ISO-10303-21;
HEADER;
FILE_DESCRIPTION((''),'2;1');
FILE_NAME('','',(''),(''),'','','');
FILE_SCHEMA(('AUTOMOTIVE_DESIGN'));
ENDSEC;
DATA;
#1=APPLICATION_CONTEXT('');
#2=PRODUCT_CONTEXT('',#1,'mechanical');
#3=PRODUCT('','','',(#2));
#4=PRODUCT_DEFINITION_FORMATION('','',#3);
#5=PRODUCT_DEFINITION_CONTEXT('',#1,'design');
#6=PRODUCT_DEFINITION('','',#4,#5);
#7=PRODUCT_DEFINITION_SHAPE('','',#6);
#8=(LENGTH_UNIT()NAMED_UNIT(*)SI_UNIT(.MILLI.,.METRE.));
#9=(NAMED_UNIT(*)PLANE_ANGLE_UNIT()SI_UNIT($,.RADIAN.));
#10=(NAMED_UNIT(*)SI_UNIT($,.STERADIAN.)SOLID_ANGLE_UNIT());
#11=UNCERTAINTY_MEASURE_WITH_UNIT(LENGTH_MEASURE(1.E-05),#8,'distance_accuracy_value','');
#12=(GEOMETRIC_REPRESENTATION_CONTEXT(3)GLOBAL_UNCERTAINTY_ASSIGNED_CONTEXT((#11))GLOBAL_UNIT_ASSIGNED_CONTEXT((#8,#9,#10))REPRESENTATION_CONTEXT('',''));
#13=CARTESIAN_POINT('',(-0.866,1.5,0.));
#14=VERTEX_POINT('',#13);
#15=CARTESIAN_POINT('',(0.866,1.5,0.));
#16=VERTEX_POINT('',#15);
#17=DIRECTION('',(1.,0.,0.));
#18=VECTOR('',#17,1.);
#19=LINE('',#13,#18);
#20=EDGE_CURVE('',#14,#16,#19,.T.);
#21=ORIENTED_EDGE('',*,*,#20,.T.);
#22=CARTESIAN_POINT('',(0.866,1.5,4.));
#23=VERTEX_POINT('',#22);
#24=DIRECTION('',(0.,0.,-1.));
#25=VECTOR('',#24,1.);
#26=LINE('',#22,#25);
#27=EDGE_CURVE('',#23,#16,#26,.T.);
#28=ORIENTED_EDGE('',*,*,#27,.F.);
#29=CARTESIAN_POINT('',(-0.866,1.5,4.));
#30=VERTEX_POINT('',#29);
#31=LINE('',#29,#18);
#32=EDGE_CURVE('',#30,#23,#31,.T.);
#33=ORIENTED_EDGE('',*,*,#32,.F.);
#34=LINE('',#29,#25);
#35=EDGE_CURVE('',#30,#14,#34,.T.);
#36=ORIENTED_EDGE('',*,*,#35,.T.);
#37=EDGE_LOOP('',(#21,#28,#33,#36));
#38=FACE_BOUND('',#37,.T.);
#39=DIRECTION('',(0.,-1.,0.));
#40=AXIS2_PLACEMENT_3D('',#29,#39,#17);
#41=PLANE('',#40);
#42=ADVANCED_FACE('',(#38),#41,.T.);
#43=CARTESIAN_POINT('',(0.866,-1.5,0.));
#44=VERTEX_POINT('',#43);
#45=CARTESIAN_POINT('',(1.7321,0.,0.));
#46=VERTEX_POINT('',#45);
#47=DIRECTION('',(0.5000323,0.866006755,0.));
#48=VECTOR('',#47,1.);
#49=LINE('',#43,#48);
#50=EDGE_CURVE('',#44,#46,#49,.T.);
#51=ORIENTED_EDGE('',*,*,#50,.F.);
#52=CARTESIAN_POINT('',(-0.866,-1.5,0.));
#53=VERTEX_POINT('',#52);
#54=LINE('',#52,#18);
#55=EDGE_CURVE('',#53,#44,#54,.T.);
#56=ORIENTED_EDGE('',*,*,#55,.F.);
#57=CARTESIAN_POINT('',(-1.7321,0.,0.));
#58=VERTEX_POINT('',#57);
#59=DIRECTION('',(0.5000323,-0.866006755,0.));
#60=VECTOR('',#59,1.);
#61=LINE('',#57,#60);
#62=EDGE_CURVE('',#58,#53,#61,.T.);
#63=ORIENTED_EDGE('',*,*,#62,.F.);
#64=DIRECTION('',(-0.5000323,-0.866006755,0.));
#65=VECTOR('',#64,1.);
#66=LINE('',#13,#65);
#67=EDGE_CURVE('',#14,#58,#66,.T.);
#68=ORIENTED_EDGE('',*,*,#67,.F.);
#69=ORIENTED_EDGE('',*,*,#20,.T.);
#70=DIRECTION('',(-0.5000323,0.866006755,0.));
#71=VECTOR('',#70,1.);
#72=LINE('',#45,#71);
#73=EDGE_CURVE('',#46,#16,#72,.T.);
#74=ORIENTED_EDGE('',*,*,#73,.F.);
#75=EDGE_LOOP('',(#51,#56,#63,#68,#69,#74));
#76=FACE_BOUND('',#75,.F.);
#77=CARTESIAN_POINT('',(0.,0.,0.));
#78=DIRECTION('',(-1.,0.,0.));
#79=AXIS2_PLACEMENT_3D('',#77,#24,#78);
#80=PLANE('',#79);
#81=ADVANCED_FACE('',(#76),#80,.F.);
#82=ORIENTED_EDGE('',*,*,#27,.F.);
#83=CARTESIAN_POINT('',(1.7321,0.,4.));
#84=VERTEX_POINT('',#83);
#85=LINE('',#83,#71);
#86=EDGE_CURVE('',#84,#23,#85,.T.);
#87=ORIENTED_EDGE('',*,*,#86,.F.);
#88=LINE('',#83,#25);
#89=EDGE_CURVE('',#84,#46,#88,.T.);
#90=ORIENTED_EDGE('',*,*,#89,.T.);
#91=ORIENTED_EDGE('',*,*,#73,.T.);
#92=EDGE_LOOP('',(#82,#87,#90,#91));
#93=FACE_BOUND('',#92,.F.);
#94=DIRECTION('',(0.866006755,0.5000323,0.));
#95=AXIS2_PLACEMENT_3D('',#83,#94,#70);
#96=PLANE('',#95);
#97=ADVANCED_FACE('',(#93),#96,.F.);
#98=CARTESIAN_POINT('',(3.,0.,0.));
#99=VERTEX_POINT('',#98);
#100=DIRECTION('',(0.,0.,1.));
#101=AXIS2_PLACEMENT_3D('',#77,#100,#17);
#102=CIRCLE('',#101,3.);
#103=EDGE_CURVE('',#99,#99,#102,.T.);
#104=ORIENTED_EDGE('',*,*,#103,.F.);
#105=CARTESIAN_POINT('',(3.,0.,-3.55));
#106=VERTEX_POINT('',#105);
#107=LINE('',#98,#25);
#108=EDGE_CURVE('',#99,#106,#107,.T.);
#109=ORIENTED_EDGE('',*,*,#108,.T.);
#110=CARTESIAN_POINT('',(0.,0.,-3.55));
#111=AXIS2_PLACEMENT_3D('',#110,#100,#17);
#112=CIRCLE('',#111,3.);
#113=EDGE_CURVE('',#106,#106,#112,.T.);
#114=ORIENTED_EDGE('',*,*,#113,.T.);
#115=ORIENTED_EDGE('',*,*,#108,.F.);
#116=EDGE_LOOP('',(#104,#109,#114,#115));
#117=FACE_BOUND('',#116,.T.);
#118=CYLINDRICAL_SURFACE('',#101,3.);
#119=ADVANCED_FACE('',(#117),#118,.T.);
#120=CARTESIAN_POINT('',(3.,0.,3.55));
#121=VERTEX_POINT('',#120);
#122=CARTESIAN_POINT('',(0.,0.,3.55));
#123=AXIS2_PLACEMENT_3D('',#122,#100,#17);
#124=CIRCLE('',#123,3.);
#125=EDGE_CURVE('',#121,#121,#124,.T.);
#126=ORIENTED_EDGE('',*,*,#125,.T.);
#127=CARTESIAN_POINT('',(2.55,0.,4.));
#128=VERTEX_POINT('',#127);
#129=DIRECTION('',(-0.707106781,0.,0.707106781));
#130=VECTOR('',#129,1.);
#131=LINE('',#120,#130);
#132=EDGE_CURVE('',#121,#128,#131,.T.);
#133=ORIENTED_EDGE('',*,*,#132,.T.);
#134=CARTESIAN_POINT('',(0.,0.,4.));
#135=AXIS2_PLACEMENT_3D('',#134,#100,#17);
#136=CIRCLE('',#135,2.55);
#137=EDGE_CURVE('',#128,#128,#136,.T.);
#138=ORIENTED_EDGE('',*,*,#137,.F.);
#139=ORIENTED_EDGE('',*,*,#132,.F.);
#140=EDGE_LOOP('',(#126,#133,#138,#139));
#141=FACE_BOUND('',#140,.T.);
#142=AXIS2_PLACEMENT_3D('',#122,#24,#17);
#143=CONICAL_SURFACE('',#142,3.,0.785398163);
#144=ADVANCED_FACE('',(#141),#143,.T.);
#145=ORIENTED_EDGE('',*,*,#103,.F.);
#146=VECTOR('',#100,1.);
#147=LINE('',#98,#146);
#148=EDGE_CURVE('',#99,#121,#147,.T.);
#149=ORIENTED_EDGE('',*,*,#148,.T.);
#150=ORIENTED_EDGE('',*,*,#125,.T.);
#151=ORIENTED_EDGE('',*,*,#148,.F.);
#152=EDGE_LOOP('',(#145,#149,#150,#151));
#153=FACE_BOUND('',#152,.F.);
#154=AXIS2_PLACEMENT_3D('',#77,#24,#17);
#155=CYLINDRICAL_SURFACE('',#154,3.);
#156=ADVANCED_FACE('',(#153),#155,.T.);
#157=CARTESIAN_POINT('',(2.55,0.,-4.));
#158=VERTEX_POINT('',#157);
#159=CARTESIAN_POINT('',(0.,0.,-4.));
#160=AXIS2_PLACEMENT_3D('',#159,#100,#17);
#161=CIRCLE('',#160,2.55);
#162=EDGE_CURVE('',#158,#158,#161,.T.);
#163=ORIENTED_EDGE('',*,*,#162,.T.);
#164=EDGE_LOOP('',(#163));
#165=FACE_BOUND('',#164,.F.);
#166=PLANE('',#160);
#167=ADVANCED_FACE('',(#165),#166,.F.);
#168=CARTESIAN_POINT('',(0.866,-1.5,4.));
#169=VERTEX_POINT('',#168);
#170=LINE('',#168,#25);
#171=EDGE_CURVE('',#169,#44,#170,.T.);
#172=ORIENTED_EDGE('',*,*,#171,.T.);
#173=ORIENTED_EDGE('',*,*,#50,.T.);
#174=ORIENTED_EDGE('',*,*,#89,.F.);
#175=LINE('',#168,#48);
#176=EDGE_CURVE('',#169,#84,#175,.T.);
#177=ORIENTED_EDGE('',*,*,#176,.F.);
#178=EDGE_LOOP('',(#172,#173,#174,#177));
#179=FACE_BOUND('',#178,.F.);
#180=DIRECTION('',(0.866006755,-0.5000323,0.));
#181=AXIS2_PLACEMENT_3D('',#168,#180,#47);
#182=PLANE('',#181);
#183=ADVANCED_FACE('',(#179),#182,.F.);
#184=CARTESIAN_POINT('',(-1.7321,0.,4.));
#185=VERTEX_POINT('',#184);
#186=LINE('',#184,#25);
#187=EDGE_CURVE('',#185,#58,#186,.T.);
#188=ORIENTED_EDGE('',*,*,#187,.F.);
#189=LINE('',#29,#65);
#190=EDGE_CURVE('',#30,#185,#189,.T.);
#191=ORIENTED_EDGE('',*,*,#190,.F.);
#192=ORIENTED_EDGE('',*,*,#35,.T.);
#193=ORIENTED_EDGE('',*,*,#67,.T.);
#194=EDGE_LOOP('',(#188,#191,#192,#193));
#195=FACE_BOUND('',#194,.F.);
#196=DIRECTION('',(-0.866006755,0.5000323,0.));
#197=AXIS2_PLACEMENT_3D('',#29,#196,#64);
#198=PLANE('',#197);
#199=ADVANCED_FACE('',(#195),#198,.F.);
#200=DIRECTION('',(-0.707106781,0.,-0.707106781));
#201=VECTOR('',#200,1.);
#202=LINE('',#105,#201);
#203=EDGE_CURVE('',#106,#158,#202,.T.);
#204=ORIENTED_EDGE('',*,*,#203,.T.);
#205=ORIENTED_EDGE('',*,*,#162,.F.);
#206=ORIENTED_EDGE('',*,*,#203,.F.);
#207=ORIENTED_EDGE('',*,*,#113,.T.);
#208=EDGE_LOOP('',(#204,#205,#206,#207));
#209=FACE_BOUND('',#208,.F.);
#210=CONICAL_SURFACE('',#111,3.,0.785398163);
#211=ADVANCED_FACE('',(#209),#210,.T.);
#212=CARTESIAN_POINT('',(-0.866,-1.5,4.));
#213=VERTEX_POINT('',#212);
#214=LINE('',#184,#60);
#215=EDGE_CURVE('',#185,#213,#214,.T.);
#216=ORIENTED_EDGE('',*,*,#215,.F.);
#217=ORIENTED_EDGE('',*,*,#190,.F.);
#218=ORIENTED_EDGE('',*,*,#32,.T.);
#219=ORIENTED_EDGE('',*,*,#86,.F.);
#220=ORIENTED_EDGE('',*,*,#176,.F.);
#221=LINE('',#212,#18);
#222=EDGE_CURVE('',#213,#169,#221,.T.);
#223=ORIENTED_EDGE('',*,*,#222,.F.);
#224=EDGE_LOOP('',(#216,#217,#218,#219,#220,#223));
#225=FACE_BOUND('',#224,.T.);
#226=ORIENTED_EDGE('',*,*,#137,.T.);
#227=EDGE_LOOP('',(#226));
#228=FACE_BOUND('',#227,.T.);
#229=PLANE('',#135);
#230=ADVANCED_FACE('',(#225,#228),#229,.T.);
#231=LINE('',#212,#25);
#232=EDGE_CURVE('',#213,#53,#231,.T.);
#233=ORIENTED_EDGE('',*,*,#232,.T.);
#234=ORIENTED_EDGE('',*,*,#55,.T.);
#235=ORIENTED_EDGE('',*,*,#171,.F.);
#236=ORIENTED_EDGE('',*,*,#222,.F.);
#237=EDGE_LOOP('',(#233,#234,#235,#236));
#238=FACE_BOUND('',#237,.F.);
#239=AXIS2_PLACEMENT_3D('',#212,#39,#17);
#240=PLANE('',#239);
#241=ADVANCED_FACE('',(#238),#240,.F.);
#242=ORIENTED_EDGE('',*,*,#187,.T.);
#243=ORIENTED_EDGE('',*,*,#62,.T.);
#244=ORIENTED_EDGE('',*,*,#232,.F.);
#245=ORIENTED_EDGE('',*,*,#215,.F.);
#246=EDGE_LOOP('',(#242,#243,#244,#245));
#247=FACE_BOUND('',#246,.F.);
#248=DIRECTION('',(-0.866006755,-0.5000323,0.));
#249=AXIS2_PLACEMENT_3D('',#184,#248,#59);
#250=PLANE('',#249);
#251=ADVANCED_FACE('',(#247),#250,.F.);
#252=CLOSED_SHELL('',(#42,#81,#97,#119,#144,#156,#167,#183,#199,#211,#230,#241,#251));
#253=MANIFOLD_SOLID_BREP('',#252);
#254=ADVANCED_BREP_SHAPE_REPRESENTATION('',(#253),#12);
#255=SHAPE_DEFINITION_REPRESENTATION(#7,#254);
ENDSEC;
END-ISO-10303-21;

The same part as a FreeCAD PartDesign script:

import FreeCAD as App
import Part
import Sketcher
from FreeCAD import Vector
Q = App.Units.Quantity


def edges_at(feature, points):
    """Names of the edges that pass closest to the given points."""
    edges = feature.Shape.Edges
    near = lambda p: min(range(len(edges)), key=lambda i: edges[i].distToShape(Part.Vertex(*p))[0])
    return sorted({f"Edge{near(p) + 1}" for p in points})


def add_polygon(sketch, points):
    """Adds a closed chain of lines whose ends are joined by coincident constraints."""
    first, n = sketch.GeometryCount, len(points)
    for a, b in zip(points, points[1:] + points[:1]):
        sketch.addGeometry(Part.LineSegment(App.Vector(*a, 0), App.Vector(*b, 0)), False)
    for i in range(n):
        sketch.addConstraint(Sketcher.Constraint("Coincident", first + i, 2, first + (i + 1) % n, 1))

doc = App.newDocument("Part")
body = doc.addObject("PartDesign::Body", "Body")

sketch1 = body.newObject("Sketcher::SketchObject", "Sketch")
sketch1.AttachmentSupport = (doc.getObject("XY_Plane"), [""])
sketch1.MapMode = "FlatFace"
sketch1.addGeometry(Part.Circle(Vector(0, 0, 0), Vector(0, 0, 1), 3), False)
sketch1.addConstraint([
    Sketcher.Constraint("Coincident", 0, 3, -1, 1),
    Sketcher.Constraint("Diameter", 0, Q("6 mm")),
])
pad1 = body.newObject("PartDesign::Pad", "Pad")
pad1.Profile = sketch1
pad1.Length = 8
pad1.Midplane = True
doc.recompute()

chamfer = body.newObject("PartDesign::Chamfer", "Chamfer")
chamfer.Base = (pad1, edges_at(pad1, [(-3, 0, -4), (-3, 0, 4)]))
chamfer.Size = 0.45

sketch2 = body.newObject("Sketcher::SketchObject", "Sketch001")
sketch2.AttachmentSupport = (doc.getObject("XY_Plane"), [""])
sketch2.MapMode = "FlatFace"
sketch2.AttachmentOffset = App.Placement(Vector(0, 0, 4), App.Rotation())
add_polygon(sketch2, [(0.9, 1.5), (-0.9, 1.5), (-1.7, 0), (-0.9, -1.5), (0.9, -1.5), (1.7, 0)])
sketch2.addConstraint([
    Sketcher.Constraint("Horizontal", 0),
    Sketcher.Constraint("Horizontal", 3),
    Sketcher.Constraint("Symmetric", 0, 2, 3, 2, -1, 1),
    Sketcher.Constraint("Symmetric", 1, 2, 4, 2, -1, 1),
    Sketcher.Constraint("PointOnObject", 1, 2, -1),
    Sketcher.Constraint("Parallel", 2, 5),
    Sketcher.Constraint("Vertical", 0, 2, 2, 2),
    Sketcher.Constraint("DistanceY", 2, 2, 0, 2, Q("3 mm")),
    Sketcher.Constraint("DistanceX", 0, 2, 0, 1, Q("1.732 mm")),
    Sketcher.Constraint("Distance", 1, Q("1.732 mm")),
])
pocket1 = body.newObject("PartDesign::Pocket", "Pocket")
pocket1.Profile = sketch2
pocket1.Length = 4

doc.recompute()
